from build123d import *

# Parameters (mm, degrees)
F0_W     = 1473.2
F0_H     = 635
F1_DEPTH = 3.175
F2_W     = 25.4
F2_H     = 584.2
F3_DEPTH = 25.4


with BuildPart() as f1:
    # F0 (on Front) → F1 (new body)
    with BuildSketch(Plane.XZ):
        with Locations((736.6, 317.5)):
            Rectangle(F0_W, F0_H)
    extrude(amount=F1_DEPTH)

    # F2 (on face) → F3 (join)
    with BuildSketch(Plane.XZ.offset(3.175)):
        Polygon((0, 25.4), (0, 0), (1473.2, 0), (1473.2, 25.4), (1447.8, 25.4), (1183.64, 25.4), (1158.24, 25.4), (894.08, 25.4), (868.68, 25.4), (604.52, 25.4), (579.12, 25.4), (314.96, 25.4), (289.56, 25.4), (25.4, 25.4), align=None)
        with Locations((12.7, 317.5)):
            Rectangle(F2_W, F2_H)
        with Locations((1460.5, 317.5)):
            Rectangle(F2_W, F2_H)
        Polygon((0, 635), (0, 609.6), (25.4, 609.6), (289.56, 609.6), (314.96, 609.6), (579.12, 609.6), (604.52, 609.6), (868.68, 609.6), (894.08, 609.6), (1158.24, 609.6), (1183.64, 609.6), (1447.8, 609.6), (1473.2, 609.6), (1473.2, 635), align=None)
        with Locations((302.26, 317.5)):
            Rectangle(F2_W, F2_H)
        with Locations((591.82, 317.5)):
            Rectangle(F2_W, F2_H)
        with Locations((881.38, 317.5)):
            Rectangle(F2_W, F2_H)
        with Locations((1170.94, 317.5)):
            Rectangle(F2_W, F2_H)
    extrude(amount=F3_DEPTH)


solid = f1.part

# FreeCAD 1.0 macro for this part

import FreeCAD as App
import Part
import Sketcher

V = App.Vector
Q = App.Units.Quantity


def add_polygon(sketch, points):
    """Adds a closed chain of lines whose ends are joined by coincident constraints."""
    first, n = sketch.GeometryCount, len(points)
    for a, b in zip(points, points[1:] + points[:1]):
        sketch.addGeometry(Part.LineSegment(App.Vector(*a, 0), App.Vector(*b, 0)), False)
    for i in range(n):
        sketch.addConstraint(Sketcher.Constraint("Coincident", first + i, 2, first + (i + 1) % n, 1))

doc = App.newDocument("Part")
body = doc.addObject("PartDesign::Body", "Body")

# Sketch on XZ plane
sketch1 = doc.addObject("Sketcher::SketchObject", "Sketch")
body.addObject(sketch1)
sketch1.AttachmentSupport = (doc.XZ_Plane, [""])
sketch1.MapMode = "FlatFace"
add_polygon(sketch1, [(0, 635), (0, 0), (1473, 0), (1473, 635)])  # lines 0-3
sketch1.addConstraint([
    Sketcher.Constraint("Vertical", 0),
    Sketcher.Constraint("Horizontal", 1),
    Sketcher.Constraint("Vertical", 2),
    Sketcher.Constraint("Horizontal", 3),
    Sketcher.Constraint("Coincident", 0, 2, -1, 1),
    Sketcher.Constraint("DistanceX", 1, 1, 1, 2, Q("58 in")),
    Sketcher.Constraint("DistanceY", 0, 2, 0, 1, Q("25 in")),
])
pad1 = doc.addObject("PartDesign::Pad", "Pad")
body.addObject(pad1)
pad1.Profile = sketch1
pad1.Length = Q("0.125 in")

# Sketch on XZ plane
sketch2 = doc.addObject("Sketcher::SketchObject", "Sketch001")
body.addObject(sketch2)
sketch2.AttachmentSupport = (doc.XZ_Plane, [""])
sketch2.MapMode = "FlatFace"
sketch2.AttachmentOffset = App.Placement(V(0, 0, 0.125 * 25.4), App.Rotation())
add_polygon(sketch2, [(0, 0), (1473, 0), (1473, 635), (0, 635)])  # lines 0-3
add_polygon(sketch2, [(1448, 610), (1448, 25), (1184, 25), (1184, 610)])  # lines 4-7
add_polygon(sketch2, [(1158, 25), (894, 25), (894, 610), (1158, 610)])  # lines 8-11
add_polygon(sketch2, [(869, 25), (605, 25), (605, 610), (869, 610)])  # lines 12-15
add_polygon(sketch2, [(579, 25), (315, 25), (315, 610), (579, 610)])  # lines 16-19
add_polygon(sketch2, [(290, 25), (25, 25), (25, 610), (290, 610)])  # lines 20-23
sketch2.addConstraint([
    Sketcher.Constraint("Horizontal", 0),
    Sketcher.Constraint("Vertical", 1),
    Sketcher.Constraint("Horizontal", 2),
    Sketcher.Constraint("Vertical", 3),
    Sketcher.Constraint("Vertical", 4),
    Sketcher.Constraint("Horizontal", 5),
    Sketcher.Constraint("Vertical", 6),
    Sketcher.Constraint("Horizontal", 7),
    Sketcher.Constraint("Horizontal", 8),
    Sketcher.Constraint("Vertical", 9),
    Sketcher.Constraint("Horizontal", 10),
    Sketcher.Constraint("Vertical", 11),
    Sketcher.Constraint("Horizontal", 12),
    Sketcher.Constraint("Vertical", 13),
    Sketcher.Constraint("Horizontal", 14),
    Sketcher.Constraint("Vertical", 15),
    Sketcher.Constraint("Horizontal", 16),
    Sketcher.Constraint("Vertical", 17),
    Sketcher.Constraint("Horizontal", 18),
    Sketcher.Constraint("Vertical", 19),
    Sketcher.Constraint("Horizontal", 20),
    Sketcher.Constraint("Vertical", 21),
    Sketcher.Constraint("Horizontal", 22),
    Sketcher.Constraint("Vertical", 23),
    Sketcher.Constraint("Coincident", 3, 2, -1, 1),
    Sketcher.Constraint("Horizontal", 5, 2, 8, 2),
    Sketcher.Constraint("Horizontal", 7, 2, 9, 2),
    Sketcher.Constraint("Horizontal", 11, 2, 12, 2),
    Sketcher.Constraint("Horizontal", 10, 2, 13, 2),
    Sketcher.Constraint("Horizontal", 15, 2, 16, 2),
    Sketcher.Constraint("Horizontal", 14, 2, 17, 2),
    Sketcher.Constraint("Horizontal", 19, 2, 20, 2),
    Sketcher.Constraint("Horizontal", 18, 2, 21, 2),
    Sketcher.Constraint("Equal", 7, 8),
    Sketcher.Constraint("Equal", 10, 12),
    Sketcher.Constraint("Equal", 14, 16),
    Sketcher.Constraint("Equal", 18, 20),
    Sketcher.Constraint("DistanceX", 0, 1, 0, 2, Q("58 in")),
    Sketcher.Constraint("DistanceY", 1, 1, 1, 2, Q("25 in")),
    Sketcher.Constraint("DistanceY", 4, 2, 4, 1, Q("23 in")),
    Sketcher.Constraint("DistanceX", 5, 2, 5, 1, Q("10.4 in")),
    Sketcher.Constraint("DistanceX", -1, 1, 4, 2, Q("57 in")),
    Sketcher.Constraint("DistanceY", -1, 1, 4, 2, Q("1 in")),
    Sketcher.Constraint("DistanceX", -1, 1, 20, 2, Q("1 in")),
    Sketcher.Constraint("DistanceX", 10, 2, 6, 2, Q("1 in")),
    Sketcher.Constraint("DistanceX", 14, 2, 9, 2, Q("1 in")),
    Sketcher.Constraint("DistanceX", 18, 2, 13, 2, Q("1 in")),
])
pad2 = doc.addObject("PartDesign::Pad", "Pad001")
body.addObject(pad2)
pad2.Profile = sketch2
pad2.Length = Q("1 in")

doc.recompute()
